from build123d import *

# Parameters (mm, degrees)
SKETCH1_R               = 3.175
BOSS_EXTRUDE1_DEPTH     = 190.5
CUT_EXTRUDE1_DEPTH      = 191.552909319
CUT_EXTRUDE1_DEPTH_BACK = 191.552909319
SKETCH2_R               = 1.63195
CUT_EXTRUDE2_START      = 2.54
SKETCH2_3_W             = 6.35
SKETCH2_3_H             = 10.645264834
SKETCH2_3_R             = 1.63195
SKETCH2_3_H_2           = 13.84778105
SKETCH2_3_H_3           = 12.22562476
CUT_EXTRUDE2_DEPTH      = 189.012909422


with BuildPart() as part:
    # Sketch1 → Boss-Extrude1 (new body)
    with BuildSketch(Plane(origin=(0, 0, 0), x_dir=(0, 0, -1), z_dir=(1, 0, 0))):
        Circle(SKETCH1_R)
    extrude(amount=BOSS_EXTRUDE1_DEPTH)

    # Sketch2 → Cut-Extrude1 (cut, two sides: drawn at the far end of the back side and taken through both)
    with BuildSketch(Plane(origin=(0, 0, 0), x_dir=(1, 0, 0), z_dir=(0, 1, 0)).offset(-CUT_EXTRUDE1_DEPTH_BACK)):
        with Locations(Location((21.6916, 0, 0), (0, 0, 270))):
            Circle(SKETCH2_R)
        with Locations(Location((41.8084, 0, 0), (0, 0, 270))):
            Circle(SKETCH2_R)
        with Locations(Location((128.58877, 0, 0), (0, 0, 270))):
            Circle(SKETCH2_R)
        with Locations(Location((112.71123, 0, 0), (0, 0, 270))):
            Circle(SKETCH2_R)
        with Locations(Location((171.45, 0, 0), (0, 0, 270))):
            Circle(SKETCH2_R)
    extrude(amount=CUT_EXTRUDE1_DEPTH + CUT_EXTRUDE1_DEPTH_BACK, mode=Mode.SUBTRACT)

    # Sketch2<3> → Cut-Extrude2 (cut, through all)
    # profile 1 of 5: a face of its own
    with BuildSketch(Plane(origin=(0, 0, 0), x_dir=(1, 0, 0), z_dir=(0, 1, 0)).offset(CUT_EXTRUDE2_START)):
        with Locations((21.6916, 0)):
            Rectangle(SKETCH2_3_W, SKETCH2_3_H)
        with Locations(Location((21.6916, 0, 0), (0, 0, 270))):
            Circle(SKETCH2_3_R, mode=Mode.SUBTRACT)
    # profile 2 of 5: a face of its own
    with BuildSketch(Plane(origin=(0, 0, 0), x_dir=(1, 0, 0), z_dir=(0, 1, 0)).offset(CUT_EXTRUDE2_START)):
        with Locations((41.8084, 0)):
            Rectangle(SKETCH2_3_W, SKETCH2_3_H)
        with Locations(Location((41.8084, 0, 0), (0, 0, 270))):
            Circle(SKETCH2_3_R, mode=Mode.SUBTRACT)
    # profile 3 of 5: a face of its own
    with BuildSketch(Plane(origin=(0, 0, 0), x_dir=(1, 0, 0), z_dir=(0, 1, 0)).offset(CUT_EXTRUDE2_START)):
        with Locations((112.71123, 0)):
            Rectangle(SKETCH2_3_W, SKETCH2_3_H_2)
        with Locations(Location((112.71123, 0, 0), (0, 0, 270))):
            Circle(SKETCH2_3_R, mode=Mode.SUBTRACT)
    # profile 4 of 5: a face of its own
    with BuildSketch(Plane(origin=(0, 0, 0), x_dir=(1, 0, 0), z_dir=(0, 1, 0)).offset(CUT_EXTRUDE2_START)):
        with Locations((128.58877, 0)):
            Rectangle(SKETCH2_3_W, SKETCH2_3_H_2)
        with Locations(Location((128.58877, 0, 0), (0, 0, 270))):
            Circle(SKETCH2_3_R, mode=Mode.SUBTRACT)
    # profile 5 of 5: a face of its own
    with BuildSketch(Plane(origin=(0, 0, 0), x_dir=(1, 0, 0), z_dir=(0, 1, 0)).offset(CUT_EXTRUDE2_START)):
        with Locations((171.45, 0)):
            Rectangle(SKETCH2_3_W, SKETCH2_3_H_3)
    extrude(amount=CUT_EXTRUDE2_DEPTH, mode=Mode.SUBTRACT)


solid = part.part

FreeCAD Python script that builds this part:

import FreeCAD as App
import Part
import Sketcher
Q = App.Units.Quantity

doc = App.newDocument("Part")
body = doc.addObject("PartDesign::Body", "Body")

# Sketch on YZ plane
sketch1 = body.newObject("Sketcher::SketchObject", "Sketch")
sketch1.AttachmentSupport = (doc.getObject("YZ_Plane"), [""])
sketch1.MapMode = "FlatFace"
sketch1.addGeometry(Part.Circle(App.Vector(0, 0, 0), App.Vector(0, 0, 1), 3.175), False)
sketch1.addConstraint([
    Sketcher.Constraint("Coincident", 0, 3, -1, 1),
    Sketcher.Constraint("Diameter", 0, Q("0.25 in")),
])
pad1 = body.newObject("PartDesign::Pad", "Pad")
pad1.Profile = sketch1
pad1.Length = Q("7.5 in")

# Sketch on XZ plane
sketch2 = body.newObject("Sketcher::SketchObject", "Sketch001")
sketch2.AttachmentSupport = (doc.getObject("XZ_Plane"), [""])
sketch2.MapMode = "FlatFace"
sketch2.addGeometry([
    Part.Circle(App.Vector(21.6916, 0, 0), App.Vector(0, 0, 1), 1.63195),  # 0
    Part.Circle(App.Vector(41.8084, 0, 0), App.Vector(0, 0, 1), 1.63195),  # 1
    Part.Circle(App.Vector(128.58877, 0, 0), App.Vector(0, 0, 1), 1.63195),  # 2
    Part.Circle(App.Vector(112.71123, 0, 0), App.Vector(0, 0, 1), 1.63195),  # 3
    Part.Circle(App.Vector(171.45, 0, 0), App.Vector(0, 0, 1), 1.63195),  # 4
], False)
sketch2.addConstraint([
    Sketcher.Constraint("Equal", 0, 1),
    Sketcher.Constraint("Equal", 1, 2),
    Sketcher.Constraint("Equal", 2, 3),
    Sketcher.Constraint("Equal", 3, 4),
    Sketcher.Constraint("PointOnObject", 0, 3, -1),
    Sketcher.Constraint("PointOnObject", 1, 3, -1),
    Sketcher.Constraint("PointOnObject", 2, 3, -1),
    Sketcher.Constraint("PointOnObject", 3, 3, -1),
    Sketcher.Constraint("PointOnObject", 4, 3, -1),
    Sketcher.Constraint("Diameter", 0, Q("0.1285 in")),
    Sketcher.Constraint("DistanceX", -1, 1, 4, 3, Q("6.75 in")),
    Sketcher.Constraint("DistanceX", -1, 1, 0, 3, Q("0.854 in")),
    Sketcher.Constraint("DistanceX", -1, 1, 1, 3, Q("1.646 in")),
    Sketcher.Constraint("DistanceX", 3, 3, 2, 3, Q("0.6251 in")),
    Sketcher.Constraint("DistanceX", -1, 1, 2, 3, 128.58877),
])
pocket1 = body.newObject("PartDesign::Pocket", "Pocket")
pocket1.Profile = sketch2
pocket1.Type = "ThroughAll"
pocket1.Midplane = True

# Sketch on XZ plane
sketch3 = body.newObject("Sketcher::SketchObject", "Sketch002")
sketch3.AttachmentSupport = (doc.getObject("XZ_Plane"), [""])
sketch3.MapMode = "FlatFace"
sketch3.AttachmentOffset = App.Placement(App.Vector(0, 0, -0.1 * 25.4), App.Rotation())
sketch3.addGeometry([
    Part.LineSegment(App.Vector(18.5166, -5.322632, 0), App.Vector(18.5166, 5.322632, 0)),  # 0
    Part.LineSegment(App.Vector(18.5166, 5.322632, 0), App.Vector(24.8666, 5.322632, 0)),  # 1
    Part.LineSegment(App.Vector(24.8666, 5.322632, 0), App.Vector(24.8666, -5.322632, 0)),  # 2
    Part.LineSegment(App.Vector(24.8666, -5.322632, 0), App.Vector(18.5166, -5.322632, 0)),  # 3
    Part.Circle(App.Vector(21.6916, 0, 0), App.Vector(0, 0, 1), 1.63195),  # 4
    Part.LineSegment(App.Vector(38.6334, -5.322632, 0), App.Vector(38.6334, 5.322632, 0)),  # 5
    Part.LineSegment(App.Vector(38.6334, 5.322632, 0), App.Vector(44.9834, 5.322632, 0)),  # 6
    Part.LineSegment(App.Vector(44.9834, 5.322632, 0), App.Vector(44.9834, -5.322632, 0)),  # 7
    Part.LineSegment(App.Vector(44.9834, -5.322632, 0), App.Vector(38.6334, -5.322632, 0)),  # 8
    Part.Circle(App.Vector(41.8084, 0, 0), App.Vector(0, 0, 1), 1.63195),  # 9
    Part.LineSegment(App.Vector(109.53623, -6.923891, 0), App.Vector(109.53623, 6.923891, 0)),  # 10
    Part.LineSegment(App.Vector(109.53623, 6.923891, 0), App.Vector(115.88623, 6.923891, 0)),  # 11
    Part.LineSegment(App.Vector(115.88623, 6.923891, 0), App.Vector(115.88623, -6.923891, 0)),  # 12
    Part.LineSegment(App.Vector(115.88623, -6.923891, 0), App.Vector(109.53623, -6.923891, 0)),  # 13
    Part.Circle(App.Vector(112.71123, 0, 0), App.Vector(0, 0, 1), 1.63195),  # 14
    Part.LineSegment(App.Vector(125.41377, -6.923891, 0), App.Vector(125.41377, 6.923891, 0)),  # 15
    Part.LineSegment(App.Vector(125.41377, 6.923891, 0), App.Vector(131.76377, 6.923891, 0)),  # 16
    Part.LineSegment(App.Vector(131.76377, 6.923891, 0), App.Vector(131.76377, -6.923891, 0)),  # 17
    Part.LineSegment(App.Vector(131.76377, -6.923891, 0), App.Vector(125.41377, -6.923891, 0)),  # 18
    Part.Circle(App.Vector(128.58877, 0, 0), App.Vector(0, 0, 1), 1.63195),  # 19
    Part.LineSegment(App.Vector(168.275, -6.112812, 0), App.Vector(168.275, 6.112812, 0)),  # 20
    Part.LineSegment(App.Vector(168.275, 6.112812, 0), App.Vector(174.625, 6.112812, 0)),  # 21
    Part.LineSegment(App.Vector(174.625, 6.112812, 0), App.Vector(174.625, -6.112812, 0)),  # 22
    Part.LineSegment(App.Vector(174.625, -6.112812, 0), App.Vector(168.275, -6.112812, 0)),  # 23
], False)
sketch3.addConstraint([
    Sketcher.Constraint("Coincident", 0, 2, 1, 1),
    Sketcher.Constraint("Coincident", 1, 2, 2, 1),
    Sketcher.Constraint("Coincident", 2, 2, 3, 1),
    Sketcher.Constraint("Coincident", 3, 2, 0, 1),
    Sketcher.Constraint("Coincident", 5, 2, 6, 1),
    Sketcher.Constraint("Coincident", 6, 2, 7, 1),
    Sketcher.Constraint("Coincident", 7, 2, 8, 1),
    Sketcher.Constraint("Coincident", 8, 2, 5, 1),
    Sketcher.Constraint("Coincident", 10, 2, 11, 1),
    Sketcher.Constraint("Coincident", 11, 2, 12, 1),
    Sketcher.Constraint("Coincident", 12, 2, 13, 1),
    Sketcher.Constraint("Coincident", 13, 2, 10, 1),
    Sketcher.Constraint("Coincident", 15, 2, 16, 1),
    Sketcher.Constraint("Coincident", 16, 2, 17, 1),
    Sketcher.Constraint("Coincident", 17, 2, 18, 1),
    Sketcher.Constraint("Coincident", 18, 2, 15, 1),
    Sketcher.Constraint("Coincident", 20, 2, 21, 1),
    Sketcher.Constraint("Coincident", 21, 2, 22, 1),
    Sketcher.Constraint("Coincident", 22, 2, 23, 1),
    Sketcher.Constraint("Coincident", 23, 2, 20, 1),
    Sketcher.Constraint("Vertical", 0),
    Sketcher.Constraint("Horizontal", 1),
    Sketcher.Constraint("Vertical", 2),
    Sketcher.Constraint("Horizontal", 3),
    Sketcher.Constraint("Vertical", 5),
    Sketcher.Constraint("Horizontal", 6),
    Sketcher.Constraint("Vertical", 7),
    Sketcher.Constraint("Horizontal", 8),
    Sketcher.Constraint("Vertical", 10),
    Sketcher.Constraint("Horizontal", 11),
    Sketcher.Constraint("Vertical", 12),
    Sketcher.Constraint("Horizontal", 13),
    Sketcher.Constraint("Vertical", 15),
    Sketcher.Constraint("Horizontal", 16),
    Sketcher.Constraint("Vertical", 17),
    Sketcher.Constraint("Horizontal", 18),
    Sketcher.Constraint("Vertical", 20),
    Sketcher.Constraint("Horizontal", 21),
    Sketcher.Constraint("Vertical", 22),
    Sketcher.Constraint("Horizontal", 23),
    Sketcher.Constraint("Equal", 4, 9),
    Sketcher.Constraint("Equal", 9, 14),
    Sketcher.Constraint("Equal", 14, 19),
    Sketcher.Constraint("PointOnObject", 4, 3, -1),
    Sketcher.Constraint("PointOnObject", 9, 3, -1),
    Sketcher.Constraint("PointOnObject", 14, 3, -1),
    Sketcher.Constraint("PointOnObject", 19, 3, -1),
    Sketcher.Constraint("Horizontal", 1, 2, 5, 2),
    Sketcher.Constraint("Horizontal", 3, 2, 7, 2),
    Sketcher.Constraint("Horizontal", 11, 2, 15, 2),
    Sketcher.Constraint("Horizontal", 13, 2, 17, 2),
    Sketcher.Constraint("Equal", 3, 6),
    Sketcher.Constraint("Equal", 8, 11),
    Sketcher.Constraint("Equal", 13, 16),
    Sketcher.Constraint("Equal", 18, 21),
    Sketcher.Constraint("Diameter", 4, Q("0.1285 in")),
    Sketcher.Constraint("DistanceX", 1, 1, 1, 2, Q("0.25 in")),
    Sketcher.Constraint("DistanceX", -1, 1, 4, 3, Q("0.854 in")),
    Sketcher.Constraint("DistanceX", -1, 1, 9, 3, Q("1.646 in")),
    Sketcher.Constraint("DistanceX", -1, 1, 0, 2, Q("0.729 in")),
    Sketcher.Constraint("DistanceX", -1, 1, 5, 2, Q("1.521 in")),
    Sketcher.Constraint("DistanceX", -1, 1, 20, 2, Q("6.625 in")),
    Sketcher.Constraint("DistanceX", 10, 2, 14, 3, Q("0.125 in")),
    Sketcher.Constraint("DistanceX", 15, 2, 19, 3, Q("0.125 in")),
    Sketcher.Constraint("DistanceX", 14, 3, 19, 3, Q("0.6251 in")),
    Sketcher.Constraint("DistanceY", 10, 1, 10, 2, 13.847781),
    Sketcher.Constraint("DistanceY", 0, 1, 0, 2, 10.645265),
    Sketcher.Constraint("DistanceY", 20, 1, 20, 2, 12.225625),
    Sketcher.Constraint("DistanceX", -1, 1, 14, 3, 112.71123),
    Sketcher.Constraint("DistanceY", -1, 1, 10, 2, 6.923891),
    Sketcher.Constraint("DistanceY", 6, 2, 10, 2, 1.601258),
    Sketcher.Constraint("DistanceY", 20, 2, 16, 2, 0.811078),
])
pocket2 = body.newObject("PartDesign::Pocket", "Pocket001")
pocket2.Profile = sketch3
pocket2.Length = 189.012909

doc.recompute()
